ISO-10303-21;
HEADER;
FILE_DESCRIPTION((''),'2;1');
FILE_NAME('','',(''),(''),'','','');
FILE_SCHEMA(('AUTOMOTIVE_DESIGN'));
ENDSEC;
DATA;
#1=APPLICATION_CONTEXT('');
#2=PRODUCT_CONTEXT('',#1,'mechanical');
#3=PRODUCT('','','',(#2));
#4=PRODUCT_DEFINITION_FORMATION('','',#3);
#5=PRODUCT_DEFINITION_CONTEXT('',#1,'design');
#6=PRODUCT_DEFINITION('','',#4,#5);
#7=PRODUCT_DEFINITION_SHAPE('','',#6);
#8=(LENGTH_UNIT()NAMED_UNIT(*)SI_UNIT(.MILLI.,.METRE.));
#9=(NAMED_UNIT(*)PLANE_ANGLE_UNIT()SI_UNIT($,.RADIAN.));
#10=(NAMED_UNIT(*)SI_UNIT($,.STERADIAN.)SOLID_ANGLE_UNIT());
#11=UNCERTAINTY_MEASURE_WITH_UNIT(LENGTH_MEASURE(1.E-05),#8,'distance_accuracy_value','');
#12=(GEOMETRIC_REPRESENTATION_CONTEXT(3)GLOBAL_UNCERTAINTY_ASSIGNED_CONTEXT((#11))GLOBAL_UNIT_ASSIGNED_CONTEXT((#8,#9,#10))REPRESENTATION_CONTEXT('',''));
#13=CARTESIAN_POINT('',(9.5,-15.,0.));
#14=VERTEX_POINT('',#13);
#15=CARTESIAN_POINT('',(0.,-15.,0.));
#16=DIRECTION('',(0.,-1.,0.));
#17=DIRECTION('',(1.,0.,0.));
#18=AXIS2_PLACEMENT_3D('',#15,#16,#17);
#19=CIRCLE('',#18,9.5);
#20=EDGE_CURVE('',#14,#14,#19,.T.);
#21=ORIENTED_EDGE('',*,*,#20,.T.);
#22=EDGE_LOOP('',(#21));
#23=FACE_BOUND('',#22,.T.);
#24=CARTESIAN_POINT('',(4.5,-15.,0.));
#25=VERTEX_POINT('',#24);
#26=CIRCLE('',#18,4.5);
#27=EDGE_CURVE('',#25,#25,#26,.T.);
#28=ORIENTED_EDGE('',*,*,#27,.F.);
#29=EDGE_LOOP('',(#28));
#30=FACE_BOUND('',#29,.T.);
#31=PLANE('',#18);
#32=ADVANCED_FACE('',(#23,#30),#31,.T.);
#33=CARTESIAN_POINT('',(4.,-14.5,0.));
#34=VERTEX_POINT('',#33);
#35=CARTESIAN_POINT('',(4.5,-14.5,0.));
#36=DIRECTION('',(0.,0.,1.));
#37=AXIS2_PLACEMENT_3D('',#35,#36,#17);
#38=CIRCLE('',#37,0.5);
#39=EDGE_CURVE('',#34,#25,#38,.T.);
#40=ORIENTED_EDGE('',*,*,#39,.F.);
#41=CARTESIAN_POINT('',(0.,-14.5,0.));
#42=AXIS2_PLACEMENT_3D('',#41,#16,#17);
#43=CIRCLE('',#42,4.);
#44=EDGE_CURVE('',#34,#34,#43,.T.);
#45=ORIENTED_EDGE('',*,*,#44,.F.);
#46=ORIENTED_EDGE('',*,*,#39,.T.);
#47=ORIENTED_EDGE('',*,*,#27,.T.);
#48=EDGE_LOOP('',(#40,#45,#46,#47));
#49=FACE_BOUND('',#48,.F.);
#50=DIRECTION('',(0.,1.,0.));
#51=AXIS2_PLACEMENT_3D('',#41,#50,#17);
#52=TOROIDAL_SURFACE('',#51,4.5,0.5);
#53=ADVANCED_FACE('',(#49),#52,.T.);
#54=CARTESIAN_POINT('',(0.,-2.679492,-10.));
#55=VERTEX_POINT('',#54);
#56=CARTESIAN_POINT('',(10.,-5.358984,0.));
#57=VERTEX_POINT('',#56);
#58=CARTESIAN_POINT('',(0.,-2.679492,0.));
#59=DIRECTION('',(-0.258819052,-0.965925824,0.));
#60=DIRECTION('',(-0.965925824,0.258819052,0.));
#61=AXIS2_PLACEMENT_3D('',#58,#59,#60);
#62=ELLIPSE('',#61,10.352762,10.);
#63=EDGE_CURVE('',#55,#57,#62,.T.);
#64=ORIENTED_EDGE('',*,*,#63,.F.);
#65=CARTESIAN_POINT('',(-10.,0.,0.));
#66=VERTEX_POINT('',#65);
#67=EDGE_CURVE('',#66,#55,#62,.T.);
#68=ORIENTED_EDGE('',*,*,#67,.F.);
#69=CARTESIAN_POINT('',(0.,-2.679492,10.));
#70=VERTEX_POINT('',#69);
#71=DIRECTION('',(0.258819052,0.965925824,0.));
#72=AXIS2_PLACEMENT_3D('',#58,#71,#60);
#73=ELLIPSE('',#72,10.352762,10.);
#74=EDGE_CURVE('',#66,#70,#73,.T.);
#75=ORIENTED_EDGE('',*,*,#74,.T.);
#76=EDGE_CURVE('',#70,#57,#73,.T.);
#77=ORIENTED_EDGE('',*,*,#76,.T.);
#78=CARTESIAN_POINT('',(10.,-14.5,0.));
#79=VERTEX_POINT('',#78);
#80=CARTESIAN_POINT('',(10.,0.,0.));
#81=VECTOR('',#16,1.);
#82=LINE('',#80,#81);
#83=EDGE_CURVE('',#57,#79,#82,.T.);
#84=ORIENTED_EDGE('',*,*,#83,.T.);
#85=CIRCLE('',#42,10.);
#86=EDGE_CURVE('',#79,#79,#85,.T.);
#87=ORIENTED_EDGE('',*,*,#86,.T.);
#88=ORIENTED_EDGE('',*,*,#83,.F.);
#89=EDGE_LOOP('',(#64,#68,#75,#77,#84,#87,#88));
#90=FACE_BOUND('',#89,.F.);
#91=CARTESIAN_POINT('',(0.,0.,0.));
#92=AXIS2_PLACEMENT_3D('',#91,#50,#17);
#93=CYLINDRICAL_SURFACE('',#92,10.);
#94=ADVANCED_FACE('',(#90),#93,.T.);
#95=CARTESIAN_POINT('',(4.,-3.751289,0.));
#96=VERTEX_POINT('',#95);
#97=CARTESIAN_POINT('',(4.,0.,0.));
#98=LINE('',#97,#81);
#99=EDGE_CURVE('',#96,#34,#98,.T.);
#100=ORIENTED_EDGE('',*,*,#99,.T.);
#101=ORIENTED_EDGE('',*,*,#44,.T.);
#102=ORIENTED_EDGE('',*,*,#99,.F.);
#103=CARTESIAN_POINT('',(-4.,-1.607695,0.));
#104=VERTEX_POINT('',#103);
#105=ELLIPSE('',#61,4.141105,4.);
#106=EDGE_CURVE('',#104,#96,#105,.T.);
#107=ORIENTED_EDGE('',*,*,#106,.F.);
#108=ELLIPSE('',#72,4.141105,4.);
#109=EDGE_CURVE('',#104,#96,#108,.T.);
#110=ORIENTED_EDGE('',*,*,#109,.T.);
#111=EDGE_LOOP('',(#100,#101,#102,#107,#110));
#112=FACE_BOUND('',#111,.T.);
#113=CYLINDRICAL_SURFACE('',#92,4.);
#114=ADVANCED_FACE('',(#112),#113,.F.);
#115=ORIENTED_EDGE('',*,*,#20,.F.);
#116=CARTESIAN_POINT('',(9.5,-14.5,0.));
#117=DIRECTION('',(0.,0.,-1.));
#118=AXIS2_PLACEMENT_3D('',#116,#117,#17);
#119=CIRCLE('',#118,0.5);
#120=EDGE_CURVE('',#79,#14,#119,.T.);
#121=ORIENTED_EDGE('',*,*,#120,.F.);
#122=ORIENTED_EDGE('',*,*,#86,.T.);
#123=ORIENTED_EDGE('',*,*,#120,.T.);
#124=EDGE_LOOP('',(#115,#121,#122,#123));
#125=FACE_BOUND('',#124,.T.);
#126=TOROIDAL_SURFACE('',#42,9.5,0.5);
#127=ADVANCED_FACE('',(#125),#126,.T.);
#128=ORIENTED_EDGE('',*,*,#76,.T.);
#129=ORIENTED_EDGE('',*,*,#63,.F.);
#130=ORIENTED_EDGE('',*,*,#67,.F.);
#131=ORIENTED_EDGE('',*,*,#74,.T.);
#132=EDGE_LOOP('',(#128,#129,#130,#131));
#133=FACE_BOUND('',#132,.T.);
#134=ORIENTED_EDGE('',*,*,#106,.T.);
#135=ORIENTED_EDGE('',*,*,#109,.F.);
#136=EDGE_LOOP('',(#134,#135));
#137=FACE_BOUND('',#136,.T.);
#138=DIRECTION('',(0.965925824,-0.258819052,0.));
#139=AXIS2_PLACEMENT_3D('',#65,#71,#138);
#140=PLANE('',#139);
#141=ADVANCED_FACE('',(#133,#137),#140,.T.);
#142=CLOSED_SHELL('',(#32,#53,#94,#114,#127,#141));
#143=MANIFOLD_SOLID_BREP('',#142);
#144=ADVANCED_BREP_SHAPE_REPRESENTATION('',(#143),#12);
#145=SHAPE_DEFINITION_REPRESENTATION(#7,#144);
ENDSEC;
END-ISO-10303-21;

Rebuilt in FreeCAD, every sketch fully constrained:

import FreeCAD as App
import Part
import Sketcher
Q = App.Units.Quantity


def edges_at(feature, points):
    """Names of the edges that pass closest to the given points."""
    edges = feature.Shape.Edges
    near = lambda p: min(range(len(edges)), key=lambda i: edges[i].distToShape(Part.Vertex(*p))[0])
    return sorted({f"Edge{near(p) + 1}" for p in points})


def add_polygon(sketch, points):
    """Adds a closed chain of lines whose ends are joined by coincident constraints."""
    first, n = sketch.GeometryCount, len(points)
    for a, b in zip(points, points[1:] + points[:1]):
        sketch.addGeometry(Part.LineSegment(App.Vector(*a, 0), App.Vector(*b, 0)), False)
    for i in range(n):
        sketch.addConstraint(Sketcher.Constraint("Coincident", first + i, 2, first + (i + 1) % n, 1))

doc = App.newDocument("Part")
body = doc.addObject("PartDesign::Body", "Body")

# Sketch on XZ plane
sketch1 = body.newObject("Sketcher::SketchObject", "Sketch")
sketch1.AttachmentSupport = (doc.getObject("XZ_Plane"), [""])
sketch1.MapMode = "FlatFace"
sketch1.addGeometry(Part.Circle(App.Vector(0, 0, 0), App.Vector(0, 0, 1), 10), False)
sketch1.addGeometry(Part.Circle(App.Vector(0, 0, 0), App.Vector(0, 0, 1), 4), False)
sketch1.addConstraint(Sketcher.Constraint("Coincident", 0, 3, -1, 1))
sketch1.addConstraint(Sketcher.Constraint("Coincident", 1, 3, -1, 1))
sketch1.addConstraint(Sketcher.Constraint("Diameter", 0, 20.0))
sketch1.addConstraint(Sketcher.Constraint("Diameter", 1, 8.0))
pad1 = body.newObject("PartDesign::Pad", "Pad")
pad1.Profile = sketch1
pad1.Length = 15
doc.recompute()

fillet = body.newObject("PartDesign::Fillet", "Fillet")
fillet.Base = (pad1, edges_at(pad1, [(-10, -15, 0), (-4, -15, 0)]))
fillet.Radius = 0.5

# Sketch on XY plane
sketch2 = body.newObject("Sketcher::SketchObject", "Sketch001")
sketch2.AttachmentSupport = (doc.getObject("XY_Plane"), [""])
sketch2.MapMode = "FlatFace"
add_polygon(sketch2, [(10, 0), (-10, 0), (10, -5)])  # lines 0-2
sketch2.addConstraint(Sketcher.Constraint("Horizontal", 0))
sketch2.addConstraint(Sketcher.Constraint("Vertical", 2))
sketch2.addConstraint(Sketcher.Constraint("Symmetric", 0, 2, 2, 2, -1, 1))
sketch2.addConstraint(Sketcher.Constraint("DistanceX", 0, 2, 0, 1, 20.0))
sketch2.addConstraint(Sketcher.Constraint("Angle", 1, Q("-15 deg")))
pocket1 = body.newObject("PartDesign::Pocket", "Pocket")
pocket1.Profile = sketch2
pocket1.Type = "ThroughAll"
pocket1.Midplane = True

doc.recompute()
